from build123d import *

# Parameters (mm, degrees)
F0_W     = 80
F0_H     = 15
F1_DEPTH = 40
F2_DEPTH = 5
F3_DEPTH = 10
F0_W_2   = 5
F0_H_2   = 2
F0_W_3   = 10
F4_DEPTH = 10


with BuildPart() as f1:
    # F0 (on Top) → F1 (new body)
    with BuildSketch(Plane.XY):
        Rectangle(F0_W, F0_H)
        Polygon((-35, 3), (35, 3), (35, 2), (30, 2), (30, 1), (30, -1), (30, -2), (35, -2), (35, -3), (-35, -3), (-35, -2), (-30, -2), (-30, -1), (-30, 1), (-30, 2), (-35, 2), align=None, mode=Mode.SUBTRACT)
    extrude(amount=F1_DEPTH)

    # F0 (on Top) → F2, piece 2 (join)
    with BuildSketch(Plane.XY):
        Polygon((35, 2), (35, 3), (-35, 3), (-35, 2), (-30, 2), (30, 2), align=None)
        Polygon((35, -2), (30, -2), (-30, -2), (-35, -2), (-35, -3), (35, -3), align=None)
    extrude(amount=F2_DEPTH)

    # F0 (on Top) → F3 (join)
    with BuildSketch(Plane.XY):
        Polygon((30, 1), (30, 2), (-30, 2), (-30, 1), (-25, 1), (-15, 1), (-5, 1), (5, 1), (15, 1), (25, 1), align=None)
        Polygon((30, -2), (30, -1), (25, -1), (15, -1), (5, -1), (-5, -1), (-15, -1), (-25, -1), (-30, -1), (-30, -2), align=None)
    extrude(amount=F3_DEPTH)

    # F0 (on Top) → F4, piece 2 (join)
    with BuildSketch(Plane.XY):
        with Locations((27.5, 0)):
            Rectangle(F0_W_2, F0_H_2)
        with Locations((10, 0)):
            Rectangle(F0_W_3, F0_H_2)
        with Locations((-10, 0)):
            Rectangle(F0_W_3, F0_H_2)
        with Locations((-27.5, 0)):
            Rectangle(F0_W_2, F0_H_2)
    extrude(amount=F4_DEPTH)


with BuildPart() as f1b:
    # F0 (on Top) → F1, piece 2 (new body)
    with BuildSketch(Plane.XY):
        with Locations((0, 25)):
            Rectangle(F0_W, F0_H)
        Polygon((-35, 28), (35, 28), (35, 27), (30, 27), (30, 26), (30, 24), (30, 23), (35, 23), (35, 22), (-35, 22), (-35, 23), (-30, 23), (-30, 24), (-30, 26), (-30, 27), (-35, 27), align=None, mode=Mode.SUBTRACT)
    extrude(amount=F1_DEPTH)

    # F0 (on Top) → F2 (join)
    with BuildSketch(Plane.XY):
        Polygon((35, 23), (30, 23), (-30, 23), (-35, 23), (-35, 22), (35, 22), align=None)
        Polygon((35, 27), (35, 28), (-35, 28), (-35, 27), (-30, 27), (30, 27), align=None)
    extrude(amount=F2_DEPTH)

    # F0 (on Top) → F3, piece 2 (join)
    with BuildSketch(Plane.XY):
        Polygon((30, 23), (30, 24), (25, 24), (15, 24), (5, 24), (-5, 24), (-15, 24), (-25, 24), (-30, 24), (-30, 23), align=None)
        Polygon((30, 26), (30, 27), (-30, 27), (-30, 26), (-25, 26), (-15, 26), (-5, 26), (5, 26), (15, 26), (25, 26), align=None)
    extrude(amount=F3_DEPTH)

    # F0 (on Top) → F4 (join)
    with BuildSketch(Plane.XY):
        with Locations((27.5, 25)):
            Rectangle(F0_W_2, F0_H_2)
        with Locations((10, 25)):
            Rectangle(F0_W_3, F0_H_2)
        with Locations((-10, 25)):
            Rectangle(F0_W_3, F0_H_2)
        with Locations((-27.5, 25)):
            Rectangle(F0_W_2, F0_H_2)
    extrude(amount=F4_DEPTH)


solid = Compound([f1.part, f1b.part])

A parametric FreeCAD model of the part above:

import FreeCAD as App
import Part
import Sketcher

V = App.Vector


def add_polygon(sketch, points):
    """Adds a closed chain of lines whose ends are joined by coincident constraints."""
    first, n = sketch.GeometryCount, len(points)
    for a, b in zip(points, points[1:] + points[:1]):
        sketch.addGeometry(Part.LineSegment(App.Vector(*a, 0), App.Vector(*b, 0)), False)
    for i in range(n):
        sketch.addConstraint(Sketcher.Constraint("Coincident", first + i, 2, first + (i + 1) % n, 1))

doc = App.newDocument("Part")
params = doc.addObject("Spreadsheet::Sheet", "Params")
for row, (alias, value) in enumerate([
    ("sketch1_width", "80 mm"),
    ("sketch1_width2", "70 mm"),
    ("sketch1_width3", "5 mm"),
    ("sketch1_height", "15 mm"),
    ("sketch1_height2", "1 mm"),
    ("pad1_length", "40 mm"),
    ("sketch2_width", "70 mm"),
    ("sketch2_height", "1 mm"),
    ("pad2_length", "5 mm"),
    ("sketch3_width", "60 mm"),
    ("sketch3_height", "1 mm"),
    ("pad3_length", "10 mm"),
    ("sketch4_width", "5 mm"),
    ("sketch4_width2", "10 mm"),
    ("sketch4_height", "2 mm"),
    ("pad4_length", "10 mm"),
    ("sketch5_width", "80 mm"),
    ("sketch5_width2", "70 mm"),
    ("sketch5_width3", "5 mm"),
    ("sketch5_height", "15 mm"),
    ("sketch5_height2", "1 mm"),
    ("pad5_length", "40 mm"),
    ("sketch6_width", "70 mm"),
    ("sketch6_height", "1 mm"),
    ("pad6_length", "5 mm"),
    ("sketch7_width", "60 mm"),
    ("sketch7_height", "1 mm"),
    ("pad7_length", "10 mm"),
    ("sketch8_width", "5 mm"),
    ("sketch8_width2", "10 mm"),
    ("sketch8_height", "2 mm"),
    ("pad8_length", "10 mm"),
], start=1):
    params.set(f"A{row}", alias)
    params.set(f"B{row}", "=" + value)
    params.setAlias(f"B{row}", alias)

body = doc.addObject("PartDesign::Body", "Body")

sketch1 = body.newObject("Sketcher::SketchObject", "Sketch")
sketch1.AttachmentSupport = (doc.getObject("XY_Plane"), [""])
sketch1.MapMode = "FlatFace"
add_polygon(sketch1, [(-40, 7.5), (-40, -7.5), (40, -7.5), (40, 7.5)])
add_polygon(sketch1, [(-35, 2), (-35, 3), (35, 3), (35, 2), (30, 2), (30, -2), (35, -2), (35, -3), (-35, -3), (-35, -2), (-30, -2), (-30, 2)])
sketch1.addConstraint([
    Sketcher.Constraint("Vertical", 0),
    Sketcher.Constraint("Horizontal", 1),
    Sketcher.Constraint("Vertical", 2),
    Sketcher.Constraint("Horizontal", 3),
    Sketcher.Constraint("Vertical", 4),
    Sketcher.Constraint("Horizontal", 5),
    Sketcher.Constraint("Vertical", 6),
    Sketcher.Constraint("Horizontal", 7),
    Sketcher.Constraint("Vertical", 8),
    Sketcher.Constraint("Horizontal", 9),
    Sketcher.Constraint("Vertical", 10),
    Sketcher.Constraint("Horizontal", 11),
    Sketcher.Constraint("Vertical", 12),
    Sketcher.Constraint("Horizontal", 13),
    Sketcher.Constraint("Vertical", 14),
    Sketcher.Constraint("Horizontal", 15),
    Sketcher.Constraint("Symmetric", 0, 2, 2, 2, -1, 1),
    Sketcher.Constraint("Symmetric", 4, 2, 10, 2, -1, 1),
    Sketcher.Constraint("Symmetric", 6, 2, 12, 2, -1, 1),
    Sketcher.Constraint("Symmetric", 8, 2, 14, 2, -1, 1),
    Sketcher.Constraint("Symmetric", 9, 2, 12, 2, -2),
    Sketcher.Constraint("DistanceX", 1, 1, 1, 2, 80.0),
    Sketcher.Constraint("DistanceX", 5, 1, 5, 2, 70.0),
    Sketcher.Constraint("DistanceX", 7, 2, 7, 1, 5.0),
    Sketcher.Constraint("DistanceY", 0, 2, 0, 1, 15.0),
    Sketcher.Constraint("DistanceY", 4, 1, 4, 2, 1.0),
    Sketcher.Constraint("DistanceY", 8, 2, 8, 1, 4.0),
])
sketch1.setExpression("Constraints[37]", "Params.sketch1_width")
sketch1.setExpression("Constraints[38]", "Params.sketch1_width2")
sketch1.setExpression("Constraints[39]", "Params.sketch1_width3")
sketch1.setExpression("Constraints[40]", "Params.sketch1_height")
sketch1.setExpression("Constraints[41]", "Params.sketch1_height2")
pad1 = body.newObject("PartDesign::Pad", "Pad")
pad1.Profile = sketch1
pad1.setExpression("Length", "Params.pad1_length")

sketch2 = body.newObject("Sketcher::SketchObject", "Sketch001")
sketch2.AttachmentSupport = (doc.getObject("XY_Plane"), [""])
sketch2.MapMode = "FlatFace"
add_polygon(sketch2, [(35, 2), (35, 3), (-35, 3), (-35, 2)])
add_polygon(sketch2, [(35, -2), (-35, -2), (-35, -3), (35, -3)])
sketch2.addConstraint([
    Sketcher.Constraint("Vertical", 0),
    Sketcher.Constraint("Horizontal", 1),
    Sketcher.Constraint("Vertical", 2),
    Sketcher.Constraint("Horizontal", 3),
    Sketcher.Constraint("Horizontal", 4),
    Sketcher.Constraint("Vertical", 5),
    Sketcher.Constraint("Horizontal", 6),
    Sketcher.Constraint("Vertical", 7),
    Sketcher.Constraint("Symmetric", 3, 2, 4, 2, -1, 1),
    Sketcher.Constraint("Symmetric", 1, 2, 6, 2, -1, 1),
    Sketcher.Constraint("Vertical", 2, 2, 4, 2),
    Sketcher.Constraint("DistanceX", 1, 2, 1, 1, 70.0),
    Sketcher.Constraint("DistanceY", 0, 1, 0, 2, 1.0),
    Sketcher.Constraint("DistanceY", -1, 1, 0, 2, 3.0),
])
sketch2.setExpression("Constraints[19]", "Params.sketch2_width")
sketch2.setExpression("Constraints[20]", "Params.sketch2_height")
pad2 = body.newObject("PartDesign::Pad", "Pad001")
pad2.Profile = sketch2
pad2.setExpression("Length", "Params.pad2_length")

sketch3 = body.newObject("Sketcher::SketchObject", "Sketch002")
sketch3.AttachmentSupport = (doc.getObject("XY_Plane"), [""])
sketch3.MapMode = "FlatFace"
add_polygon(sketch3, [(30, 1), (30, 2), (-30, 2), (-30, 1)])
add_polygon(sketch3, [(30, -2), (30, -1), (-30, -1), (-30, -2)])
sketch3.addConstraint([
    Sketcher.Constraint("Vertical", 0),
    Sketcher.Constraint("Horizontal", 1),
    Sketcher.Constraint("Vertical", 2),
    Sketcher.Constraint("Horizontal", 3),
    Sketcher.Constraint("Vertical", 4),
    Sketcher.Constraint("Horizontal", 5),
    Sketcher.Constraint("Vertical", 6),
    Sketcher.Constraint("Horizontal", 7),
    Sketcher.Constraint("Symmetric", 2, 2, 4, 2, -1, 1),
    Sketcher.Constraint("Symmetric", 0, 2, 6, 2, -1, 1),
    Sketcher.Constraint("Vertical", 3, 2, 4, 2),
    Sketcher.Constraint("DistanceX", 1, 2, 1, 1, 60.0),
    Sketcher.Constraint("DistanceY", 0, 1, 0, 2, 1.0),
    Sketcher.Constraint("DistanceY", -1, 1, 0, 2, 2.0),
])
sketch3.setExpression("Constraints[19]", "Params.sketch3_width")
sketch3.setExpression("Constraints[20]", "Params.sketch3_height")
pad3 = body.newObject("PartDesign::Pad", "Pad002")
pad3.Profile = sketch3
pad3.setExpression("Length", "Params.pad3_length")

sketch4 = body.newObject("Sketcher::SketchObject", "Sketch003")
sketch4.AttachmentSupport = (doc.getObject("XY_Plane"), [""])
sketch4.MapMode = "FlatFace"
add_polygon(sketch4, [(25, 1), (25, -1), (30, -1), (30, 1)])
add_polygon(sketch4, [(5, 1), (5, -1), (15, -1), (15, 1)])
add_polygon(sketch4, [(-15, 1), (-15, -1), (-5, -1), (-5, 1)])
add_polygon(sketch4, [(-30, 1), (-30, -1), (-25, -1), (-25, 1)])
sketch4.addConstraint([
    Sketcher.Constraint("Vertical", 0),
    Sketcher.Constraint("Horizontal", 1),
    Sketcher.Constraint("Vertical", 2),
    Sketcher.Constraint("Horizontal", 3),
    Sketcher.Constraint("Vertical", 4),
    Sketcher.Constraint("Horizontal", 5),
    Sketcher.Constraint("Vertical", 6),
    Sketcher.Constraint("Horizontal", 7),
    Sketcher.Constraint("Vertical", 8),
    Sketcher.Constraint("Horizontal", 9),
    Sketcher.Constraint("Vertical", 10),
    Sketcher.Constraint("Horizontal", 11),
    Sketcher.Constraint("Vertical", 12),
    Sketcher.Constraint("Horizontal", 13),
    Sketcher.Constraint("Vertical", 14),
    Sketcher.Constraint("Horizontal", 15),
    Sketcher.Constraint("Symmetric", 6, 2, 8, 2, -1, 1),
    Sketcher.Constraint("Symmetric", 4, 2, 10, 2, -1, 1),
    Sketcher.Constraint("Symmetric", 2, 2, 12, 2, -1, 1),
    Sketcher.Constraint("Symmetric", 0, 2, 14, 2, -1, 1),
    Sketcher.Constraint("Horizontal", 1, 2, 4, 2),
    Sketcher.Constraint("Horizontal", 3, 2, 6, 2),
    Sketcher.Constraint("Horizontal", 5, 2, 8, 2),
    Sketcher.Constraint("DistanceX", 1, 1, 1, 2, 5.0),
    Sketcher.Constraint("DistanceX", 5, 1, 5, 2, 10.0),
    Sketcher.Constraint("DistanceY", 0, 2, 0, 1, 2.0),
    Sketcher.Constraint("DistanceX", -1, 1, 0, 2, 25.0),
    Sketcher.Constraint("DistanceX", -1, 1, 4, 2, 5.0),
])
sketch4.setExpression("Constraints[39]", "Params.sketch4_width")
sketch4.setExpression("Constraints[40]", "Params.sketch4_width2")
sketch4.setExpression("Constraints[41]", "Params.sketch4_height")
pad4 = body.newObject("PartDesign::Pad", "Pad003")
pad4.Profile = sketch4
pad4.setExpression("Length", "Params.pad4_length")
body2 = doc.addObject("PartDesign::Body", "Body001")

sketch5 = body2.newObject("Sketcher::SketchObject", "Sketch004")
sketch5.AttachmentSupport = (doc.getObject("XY_Plane001"), [""])
sketch5.MapMode = "FlatFace"
add_polygon(sketch5, [(-40, 32.5), (-40, 17.5), (40, 17.5), (40, 32.5)])
add_polygon(sketch5, [(-35, 27), (-35, 28), (35, 28), (35, 27), (30, 27), (30, 23), (35, 23), (35, 22), (-35, 22), (-35, 23), (-30, 23), (-30, 27)])
sketch5.addConstraint([
    Sketcher.Constraint("Vertical", 0),
    Sketcher.Constraint("Horizontal", 1),
    Sketcher.Constraint("Vertical", 2),
    Sketcher.Constraint("Horizontal", 3),
    Sketcher.Constraint("Vertical", 4),
    Sketcher.Constraint("Horizontal", 5),
    Sketcher.Constraint("Vertical", 6),
    Sketcher.Constraint("Horizontal", 7),
    Sketcher.Constraint("Vertical", 8),
    Sketcher.Constraint("Horizontal", 9),
    Sketcher.Constraint("Vertical", 10),
    Sketcher.Constraint("Horizontal", 11),
    Sketcher.Constraint("Vertical", 12),
    Sketcher.Constraint("Horizontal", 13),
    Sketcher.Constraint("Vertical", 14),
    Sketcher.Constraint("Horizontal", 15),
    Sketcher.Constraint("Symmetric", 9, 2, 12, 2, -2),
    Sketcher.Constraint("Symmetric", 7, 2, 14, 2, -2),
    Sketcher.Constraint("Vertical", 6, 2, 9, 2),
    Sketcher.Constraint("Vertical", 4, 2, 11, 2),
    Sketcher.Constraint("Equal", 6, 10),
    Sketcher.Constraint("DistanceX", 1, 1, 1, 2, 80.0),
    Sketcher.Constraint("DistanceX", 5, 1, 5, 2, 70.0),
    Sketcher.Constraint("DistanceX", 7, 2, 7, 1, 5.0),
    Sketcher.Constraint("DistanceY", 0, 2, 0, 1, 15.0),
    Sketcher.Constraint("DistanceY", 4, 1, 4, 2, 1.0),
    Sketcher.Constraint("DistanceY", 8, 2, 8, 1, 4.0),
    Sketcher.Constraint("DistanceX", 0, 2, -1, 1, 40.0),
    Sketcher.Constraint("DistanceY", -1, 1, 4, 2, 28.0),
    Sketcher.Constraint("DistanceY", -1, 1, 0, 2, 17.5),
])
sketch5.setExpression("Constraints[37]", "Params.sketch5_width")
sketch5.setExpression("Constraints[38]", "Params.sketch5_width2")
sketch5.setExpression("Constraints[39]", "Params.sketch5_width3")
sketch5.setExpression("Constraints[40]", "Params.sketch5_height")
sketch5.setExpression("Constraints[41]", "Params.sketch5_height2")
pad5 = body2.newObject("PartDesign::Pad", "Pad004")
pad5.Profile = sketch5
pad5.setExpression("Length", "Params.pad5_length")

sketch6 = body2.newObject("Sketcher::SketchObject", "Sketch005")
sketch6.AttachmentSupport = (doc.getObject("XY_Plane001"), [""])
sketch6.MapMode = "FlatFace"
add_polygon(sketch6, [(35, 23), (-35, 23), (-35, 22), (35, 22)])
add_polygon(sketch6, [(35, 27), (35, 28), (-35, 28), (-35, 27)])
sketch6.addConstraint([
    Sketcher.Constraint("Horizontal", 0),
    Sketcher.Constraint("Vertical", 1),
    Sketcher.Constraint("Horizontal", 2),
    Sketcher.Constraint("Vertical", 3),
    Sketcher.Constraint("Vertical", 4),
    Sketcher.Constraint("Horizontal", 5),
    Sketcher.Constraint("Vertical", 6),
    Sketcher.Constraint("Horizontal", 7),
    Sketcher.Constraint("Vertical", 3, 2, 4, 2),
    Sketcher.Constraint("Vertical", 1, 2, 5, 2),
    Sketcher.Constraint("Equal", 3, 4),
    Sketcher.Constraint("DistanceX", 0, 2, 0, 1, 70.0),
    Sketcher.Constraint("DistanceY", 1, 2, 1, 1, 1.0),
    Sketcher.Constraint("DistanceX", 0, 2, -1, 1, 35.0),
    Sketcher.Constraint("DistanceY", -1, 1, 0, 2, 23.0),
    Sketcher.Constraint("DistanceY", -1, 1, 4, 2, 28.0),
])
sketch6.setExpression("Constraints[19]", "Params.sketch6_width")
sketch6.setExpression("Constraints[20]", "Params.sketch6_height")
pad6 = body2.newObject("PartDesign::Pad", "Pad005")
pad6.Profile = sketch6
pad6.setExpression("Length", "Params.pad6_length")

sketch7 = body2.newObject("Sketcher::SketchObject", "Sketch006")
sketch7.AttachmentSupport = (doc.getObject("XY_Plane001"), [""])
sketch7.MapMode = "FlatFace"
add_polygon(sketch7, [(30, 23), (30, 24), (-30, 24), (-30, 23)])
add_polygon(sketch7, [(30, 26), (30, 27), (-30, 27), (-30, 26)])
sketch7.addConstraint([
    Sketcher.Constraint("Vertical", 0),
    Sketcher.Constraint("Horizontal", 1),
    Sketcher.Constraint("Vertical", 2),
    Sketcher.Constraint("Horizontal", 3),
    Sketcher.Constraint("Vertical", 4),
    Sketcher.Constraint("Horizontal", 5),
    Sketcher.Constraint("Vertical", 6),
    Sketcher.Constraint("Horizontal", 7),
    Sketcher.Constraint("Vertical", 3, 2, 4, 2),
    Sketcher.Constraint("Vertical", 2, 2, 5, 2),
    Sketcher.Constraint("Equal", 2, 4),
    Sketcher.Constraint("DistanceX", 1, 2, 1, 1, 60.0),
    Sketcher.Constraint("DistanceY", 0, 1, 0, 2, 1.0),
    Sketcher.Constraint("DistanceX", -1, 1, 0, 2, 30.0),
    Sketcher.Constraint("DistanceY", -1, 1, 0, 2, 24.0),
    Sketcher.Constraint("DistanceY", -1, 1, 4, 2, 27.0),
])
sketch7.setExpression("Constraints[19]", "Params.sketch7_width")
sketch7.setExpression("Constraints[20]", "Params.sketch7_height")
pad7 = body2.newObject("PartDesign::Pad", "Pad006")
pad7.Profile = sketch7
pad7.setExpression("Length", "Params.pad7_length")

sketch8 = body2.newObject("Sketcher::SketchObject", "Sketch007")
sketch8.AttachmentSupport = (doc.getObject("XY_Plane001"), [""])
sketch8.MapMode = "FlatFace"
add_polygon(sketch8, [(25, 26), (25, 24), (30, 24), (30, 26)])
add_polygon(sketch8, [(5, 26), (5, 24), (15, 24), (15, 26)])
add_polygon(sketch8, [(-15, 26), (-15, 24), (-5, 24), (-5, 26)])
add_polygon(sketch8, [(-30, 26), (-30, 24), (-25, 24), (-25, 26)])
sketch8.addConstraint([
    Sketcher.Constraint("Vertical", 0),
    Sketcher.Constraint("Horizontal", 1),
    Sketcher.Constraint("Vertical", 2),
    Sketcher.Constraint("Horizontal", 3),
    Sketcher.Constraint("Vertical", 4),
    Sketcher.Constraint("Horizontal", 5),
    Sketcher.Constraint("Vertical", 6),
    Sketcher.Constraint("Horizontal", 7),
    Sketcher.Constraint("Vertical", 8),
    Sketcher.Constraint("Horizontal", 9),
    Sketcher.Constraint("Vertical", 10),
    Sketcher.Constraint("Horizontal", 11),
    Sketcher.Constraint("Vertical", 12),
    Sketcher.Constraint("Horizontal", 13),
    Sketcher.Constraint("Vertical", 14),
    Sketcher.Constraint("Horizontal", 15),
    Sketcher.Constraint("Symmetric", 5, 2, 8, 2, -2),
    Sketcher.Constraint("Symmetric", 7, 2, 10, 2, -2),
    Sketcher.Constraint("Symmetric", 1, 2, 12, 2, -2),
    Sketcher.Constraint("Symmetric", 3, 2, 14, 2, -2),
    Sketcher.Constraint("Horizontal", 1, 2, 4, 2),
    Sketcher.Constraint("Horizontal", 3, 2, 6, 2),
    Sketcher.Constraint("DistanceX", 1, 1, 1, 2, 5.0),
    Sketcher.Constraint("DistanceX", 5, 1, 5, 2, 10.0),
    Sketcher.Constraint("DistanceY", 0, 2, 0, 1, 2.0),
    Sketcher.Constraint("DistanceX", -1, 1, 0, 2, 25.0),
    Sketcher.Constraint("DistanceY", -1, 1, 0, 2, 24.0),
    Sketcher.Constraint("DistanceX", -1, 1, 4, 2, 5.0),
])
sketch8.setExpression("Constraints[38]", "Params.sketch8_width")
sketch8.setExpression("Constraints[39]", "Params.sketch8_width2")
sketch8.setExpression("Constraints[40]", "Params.sketch8_height")
pad8 = body2.newObject("PartDesign::Pad", "Pad007")
pad8.Profile = sketch8
pad8.setExpression("Length", "Params.pad8_length")

doc.recompute()
